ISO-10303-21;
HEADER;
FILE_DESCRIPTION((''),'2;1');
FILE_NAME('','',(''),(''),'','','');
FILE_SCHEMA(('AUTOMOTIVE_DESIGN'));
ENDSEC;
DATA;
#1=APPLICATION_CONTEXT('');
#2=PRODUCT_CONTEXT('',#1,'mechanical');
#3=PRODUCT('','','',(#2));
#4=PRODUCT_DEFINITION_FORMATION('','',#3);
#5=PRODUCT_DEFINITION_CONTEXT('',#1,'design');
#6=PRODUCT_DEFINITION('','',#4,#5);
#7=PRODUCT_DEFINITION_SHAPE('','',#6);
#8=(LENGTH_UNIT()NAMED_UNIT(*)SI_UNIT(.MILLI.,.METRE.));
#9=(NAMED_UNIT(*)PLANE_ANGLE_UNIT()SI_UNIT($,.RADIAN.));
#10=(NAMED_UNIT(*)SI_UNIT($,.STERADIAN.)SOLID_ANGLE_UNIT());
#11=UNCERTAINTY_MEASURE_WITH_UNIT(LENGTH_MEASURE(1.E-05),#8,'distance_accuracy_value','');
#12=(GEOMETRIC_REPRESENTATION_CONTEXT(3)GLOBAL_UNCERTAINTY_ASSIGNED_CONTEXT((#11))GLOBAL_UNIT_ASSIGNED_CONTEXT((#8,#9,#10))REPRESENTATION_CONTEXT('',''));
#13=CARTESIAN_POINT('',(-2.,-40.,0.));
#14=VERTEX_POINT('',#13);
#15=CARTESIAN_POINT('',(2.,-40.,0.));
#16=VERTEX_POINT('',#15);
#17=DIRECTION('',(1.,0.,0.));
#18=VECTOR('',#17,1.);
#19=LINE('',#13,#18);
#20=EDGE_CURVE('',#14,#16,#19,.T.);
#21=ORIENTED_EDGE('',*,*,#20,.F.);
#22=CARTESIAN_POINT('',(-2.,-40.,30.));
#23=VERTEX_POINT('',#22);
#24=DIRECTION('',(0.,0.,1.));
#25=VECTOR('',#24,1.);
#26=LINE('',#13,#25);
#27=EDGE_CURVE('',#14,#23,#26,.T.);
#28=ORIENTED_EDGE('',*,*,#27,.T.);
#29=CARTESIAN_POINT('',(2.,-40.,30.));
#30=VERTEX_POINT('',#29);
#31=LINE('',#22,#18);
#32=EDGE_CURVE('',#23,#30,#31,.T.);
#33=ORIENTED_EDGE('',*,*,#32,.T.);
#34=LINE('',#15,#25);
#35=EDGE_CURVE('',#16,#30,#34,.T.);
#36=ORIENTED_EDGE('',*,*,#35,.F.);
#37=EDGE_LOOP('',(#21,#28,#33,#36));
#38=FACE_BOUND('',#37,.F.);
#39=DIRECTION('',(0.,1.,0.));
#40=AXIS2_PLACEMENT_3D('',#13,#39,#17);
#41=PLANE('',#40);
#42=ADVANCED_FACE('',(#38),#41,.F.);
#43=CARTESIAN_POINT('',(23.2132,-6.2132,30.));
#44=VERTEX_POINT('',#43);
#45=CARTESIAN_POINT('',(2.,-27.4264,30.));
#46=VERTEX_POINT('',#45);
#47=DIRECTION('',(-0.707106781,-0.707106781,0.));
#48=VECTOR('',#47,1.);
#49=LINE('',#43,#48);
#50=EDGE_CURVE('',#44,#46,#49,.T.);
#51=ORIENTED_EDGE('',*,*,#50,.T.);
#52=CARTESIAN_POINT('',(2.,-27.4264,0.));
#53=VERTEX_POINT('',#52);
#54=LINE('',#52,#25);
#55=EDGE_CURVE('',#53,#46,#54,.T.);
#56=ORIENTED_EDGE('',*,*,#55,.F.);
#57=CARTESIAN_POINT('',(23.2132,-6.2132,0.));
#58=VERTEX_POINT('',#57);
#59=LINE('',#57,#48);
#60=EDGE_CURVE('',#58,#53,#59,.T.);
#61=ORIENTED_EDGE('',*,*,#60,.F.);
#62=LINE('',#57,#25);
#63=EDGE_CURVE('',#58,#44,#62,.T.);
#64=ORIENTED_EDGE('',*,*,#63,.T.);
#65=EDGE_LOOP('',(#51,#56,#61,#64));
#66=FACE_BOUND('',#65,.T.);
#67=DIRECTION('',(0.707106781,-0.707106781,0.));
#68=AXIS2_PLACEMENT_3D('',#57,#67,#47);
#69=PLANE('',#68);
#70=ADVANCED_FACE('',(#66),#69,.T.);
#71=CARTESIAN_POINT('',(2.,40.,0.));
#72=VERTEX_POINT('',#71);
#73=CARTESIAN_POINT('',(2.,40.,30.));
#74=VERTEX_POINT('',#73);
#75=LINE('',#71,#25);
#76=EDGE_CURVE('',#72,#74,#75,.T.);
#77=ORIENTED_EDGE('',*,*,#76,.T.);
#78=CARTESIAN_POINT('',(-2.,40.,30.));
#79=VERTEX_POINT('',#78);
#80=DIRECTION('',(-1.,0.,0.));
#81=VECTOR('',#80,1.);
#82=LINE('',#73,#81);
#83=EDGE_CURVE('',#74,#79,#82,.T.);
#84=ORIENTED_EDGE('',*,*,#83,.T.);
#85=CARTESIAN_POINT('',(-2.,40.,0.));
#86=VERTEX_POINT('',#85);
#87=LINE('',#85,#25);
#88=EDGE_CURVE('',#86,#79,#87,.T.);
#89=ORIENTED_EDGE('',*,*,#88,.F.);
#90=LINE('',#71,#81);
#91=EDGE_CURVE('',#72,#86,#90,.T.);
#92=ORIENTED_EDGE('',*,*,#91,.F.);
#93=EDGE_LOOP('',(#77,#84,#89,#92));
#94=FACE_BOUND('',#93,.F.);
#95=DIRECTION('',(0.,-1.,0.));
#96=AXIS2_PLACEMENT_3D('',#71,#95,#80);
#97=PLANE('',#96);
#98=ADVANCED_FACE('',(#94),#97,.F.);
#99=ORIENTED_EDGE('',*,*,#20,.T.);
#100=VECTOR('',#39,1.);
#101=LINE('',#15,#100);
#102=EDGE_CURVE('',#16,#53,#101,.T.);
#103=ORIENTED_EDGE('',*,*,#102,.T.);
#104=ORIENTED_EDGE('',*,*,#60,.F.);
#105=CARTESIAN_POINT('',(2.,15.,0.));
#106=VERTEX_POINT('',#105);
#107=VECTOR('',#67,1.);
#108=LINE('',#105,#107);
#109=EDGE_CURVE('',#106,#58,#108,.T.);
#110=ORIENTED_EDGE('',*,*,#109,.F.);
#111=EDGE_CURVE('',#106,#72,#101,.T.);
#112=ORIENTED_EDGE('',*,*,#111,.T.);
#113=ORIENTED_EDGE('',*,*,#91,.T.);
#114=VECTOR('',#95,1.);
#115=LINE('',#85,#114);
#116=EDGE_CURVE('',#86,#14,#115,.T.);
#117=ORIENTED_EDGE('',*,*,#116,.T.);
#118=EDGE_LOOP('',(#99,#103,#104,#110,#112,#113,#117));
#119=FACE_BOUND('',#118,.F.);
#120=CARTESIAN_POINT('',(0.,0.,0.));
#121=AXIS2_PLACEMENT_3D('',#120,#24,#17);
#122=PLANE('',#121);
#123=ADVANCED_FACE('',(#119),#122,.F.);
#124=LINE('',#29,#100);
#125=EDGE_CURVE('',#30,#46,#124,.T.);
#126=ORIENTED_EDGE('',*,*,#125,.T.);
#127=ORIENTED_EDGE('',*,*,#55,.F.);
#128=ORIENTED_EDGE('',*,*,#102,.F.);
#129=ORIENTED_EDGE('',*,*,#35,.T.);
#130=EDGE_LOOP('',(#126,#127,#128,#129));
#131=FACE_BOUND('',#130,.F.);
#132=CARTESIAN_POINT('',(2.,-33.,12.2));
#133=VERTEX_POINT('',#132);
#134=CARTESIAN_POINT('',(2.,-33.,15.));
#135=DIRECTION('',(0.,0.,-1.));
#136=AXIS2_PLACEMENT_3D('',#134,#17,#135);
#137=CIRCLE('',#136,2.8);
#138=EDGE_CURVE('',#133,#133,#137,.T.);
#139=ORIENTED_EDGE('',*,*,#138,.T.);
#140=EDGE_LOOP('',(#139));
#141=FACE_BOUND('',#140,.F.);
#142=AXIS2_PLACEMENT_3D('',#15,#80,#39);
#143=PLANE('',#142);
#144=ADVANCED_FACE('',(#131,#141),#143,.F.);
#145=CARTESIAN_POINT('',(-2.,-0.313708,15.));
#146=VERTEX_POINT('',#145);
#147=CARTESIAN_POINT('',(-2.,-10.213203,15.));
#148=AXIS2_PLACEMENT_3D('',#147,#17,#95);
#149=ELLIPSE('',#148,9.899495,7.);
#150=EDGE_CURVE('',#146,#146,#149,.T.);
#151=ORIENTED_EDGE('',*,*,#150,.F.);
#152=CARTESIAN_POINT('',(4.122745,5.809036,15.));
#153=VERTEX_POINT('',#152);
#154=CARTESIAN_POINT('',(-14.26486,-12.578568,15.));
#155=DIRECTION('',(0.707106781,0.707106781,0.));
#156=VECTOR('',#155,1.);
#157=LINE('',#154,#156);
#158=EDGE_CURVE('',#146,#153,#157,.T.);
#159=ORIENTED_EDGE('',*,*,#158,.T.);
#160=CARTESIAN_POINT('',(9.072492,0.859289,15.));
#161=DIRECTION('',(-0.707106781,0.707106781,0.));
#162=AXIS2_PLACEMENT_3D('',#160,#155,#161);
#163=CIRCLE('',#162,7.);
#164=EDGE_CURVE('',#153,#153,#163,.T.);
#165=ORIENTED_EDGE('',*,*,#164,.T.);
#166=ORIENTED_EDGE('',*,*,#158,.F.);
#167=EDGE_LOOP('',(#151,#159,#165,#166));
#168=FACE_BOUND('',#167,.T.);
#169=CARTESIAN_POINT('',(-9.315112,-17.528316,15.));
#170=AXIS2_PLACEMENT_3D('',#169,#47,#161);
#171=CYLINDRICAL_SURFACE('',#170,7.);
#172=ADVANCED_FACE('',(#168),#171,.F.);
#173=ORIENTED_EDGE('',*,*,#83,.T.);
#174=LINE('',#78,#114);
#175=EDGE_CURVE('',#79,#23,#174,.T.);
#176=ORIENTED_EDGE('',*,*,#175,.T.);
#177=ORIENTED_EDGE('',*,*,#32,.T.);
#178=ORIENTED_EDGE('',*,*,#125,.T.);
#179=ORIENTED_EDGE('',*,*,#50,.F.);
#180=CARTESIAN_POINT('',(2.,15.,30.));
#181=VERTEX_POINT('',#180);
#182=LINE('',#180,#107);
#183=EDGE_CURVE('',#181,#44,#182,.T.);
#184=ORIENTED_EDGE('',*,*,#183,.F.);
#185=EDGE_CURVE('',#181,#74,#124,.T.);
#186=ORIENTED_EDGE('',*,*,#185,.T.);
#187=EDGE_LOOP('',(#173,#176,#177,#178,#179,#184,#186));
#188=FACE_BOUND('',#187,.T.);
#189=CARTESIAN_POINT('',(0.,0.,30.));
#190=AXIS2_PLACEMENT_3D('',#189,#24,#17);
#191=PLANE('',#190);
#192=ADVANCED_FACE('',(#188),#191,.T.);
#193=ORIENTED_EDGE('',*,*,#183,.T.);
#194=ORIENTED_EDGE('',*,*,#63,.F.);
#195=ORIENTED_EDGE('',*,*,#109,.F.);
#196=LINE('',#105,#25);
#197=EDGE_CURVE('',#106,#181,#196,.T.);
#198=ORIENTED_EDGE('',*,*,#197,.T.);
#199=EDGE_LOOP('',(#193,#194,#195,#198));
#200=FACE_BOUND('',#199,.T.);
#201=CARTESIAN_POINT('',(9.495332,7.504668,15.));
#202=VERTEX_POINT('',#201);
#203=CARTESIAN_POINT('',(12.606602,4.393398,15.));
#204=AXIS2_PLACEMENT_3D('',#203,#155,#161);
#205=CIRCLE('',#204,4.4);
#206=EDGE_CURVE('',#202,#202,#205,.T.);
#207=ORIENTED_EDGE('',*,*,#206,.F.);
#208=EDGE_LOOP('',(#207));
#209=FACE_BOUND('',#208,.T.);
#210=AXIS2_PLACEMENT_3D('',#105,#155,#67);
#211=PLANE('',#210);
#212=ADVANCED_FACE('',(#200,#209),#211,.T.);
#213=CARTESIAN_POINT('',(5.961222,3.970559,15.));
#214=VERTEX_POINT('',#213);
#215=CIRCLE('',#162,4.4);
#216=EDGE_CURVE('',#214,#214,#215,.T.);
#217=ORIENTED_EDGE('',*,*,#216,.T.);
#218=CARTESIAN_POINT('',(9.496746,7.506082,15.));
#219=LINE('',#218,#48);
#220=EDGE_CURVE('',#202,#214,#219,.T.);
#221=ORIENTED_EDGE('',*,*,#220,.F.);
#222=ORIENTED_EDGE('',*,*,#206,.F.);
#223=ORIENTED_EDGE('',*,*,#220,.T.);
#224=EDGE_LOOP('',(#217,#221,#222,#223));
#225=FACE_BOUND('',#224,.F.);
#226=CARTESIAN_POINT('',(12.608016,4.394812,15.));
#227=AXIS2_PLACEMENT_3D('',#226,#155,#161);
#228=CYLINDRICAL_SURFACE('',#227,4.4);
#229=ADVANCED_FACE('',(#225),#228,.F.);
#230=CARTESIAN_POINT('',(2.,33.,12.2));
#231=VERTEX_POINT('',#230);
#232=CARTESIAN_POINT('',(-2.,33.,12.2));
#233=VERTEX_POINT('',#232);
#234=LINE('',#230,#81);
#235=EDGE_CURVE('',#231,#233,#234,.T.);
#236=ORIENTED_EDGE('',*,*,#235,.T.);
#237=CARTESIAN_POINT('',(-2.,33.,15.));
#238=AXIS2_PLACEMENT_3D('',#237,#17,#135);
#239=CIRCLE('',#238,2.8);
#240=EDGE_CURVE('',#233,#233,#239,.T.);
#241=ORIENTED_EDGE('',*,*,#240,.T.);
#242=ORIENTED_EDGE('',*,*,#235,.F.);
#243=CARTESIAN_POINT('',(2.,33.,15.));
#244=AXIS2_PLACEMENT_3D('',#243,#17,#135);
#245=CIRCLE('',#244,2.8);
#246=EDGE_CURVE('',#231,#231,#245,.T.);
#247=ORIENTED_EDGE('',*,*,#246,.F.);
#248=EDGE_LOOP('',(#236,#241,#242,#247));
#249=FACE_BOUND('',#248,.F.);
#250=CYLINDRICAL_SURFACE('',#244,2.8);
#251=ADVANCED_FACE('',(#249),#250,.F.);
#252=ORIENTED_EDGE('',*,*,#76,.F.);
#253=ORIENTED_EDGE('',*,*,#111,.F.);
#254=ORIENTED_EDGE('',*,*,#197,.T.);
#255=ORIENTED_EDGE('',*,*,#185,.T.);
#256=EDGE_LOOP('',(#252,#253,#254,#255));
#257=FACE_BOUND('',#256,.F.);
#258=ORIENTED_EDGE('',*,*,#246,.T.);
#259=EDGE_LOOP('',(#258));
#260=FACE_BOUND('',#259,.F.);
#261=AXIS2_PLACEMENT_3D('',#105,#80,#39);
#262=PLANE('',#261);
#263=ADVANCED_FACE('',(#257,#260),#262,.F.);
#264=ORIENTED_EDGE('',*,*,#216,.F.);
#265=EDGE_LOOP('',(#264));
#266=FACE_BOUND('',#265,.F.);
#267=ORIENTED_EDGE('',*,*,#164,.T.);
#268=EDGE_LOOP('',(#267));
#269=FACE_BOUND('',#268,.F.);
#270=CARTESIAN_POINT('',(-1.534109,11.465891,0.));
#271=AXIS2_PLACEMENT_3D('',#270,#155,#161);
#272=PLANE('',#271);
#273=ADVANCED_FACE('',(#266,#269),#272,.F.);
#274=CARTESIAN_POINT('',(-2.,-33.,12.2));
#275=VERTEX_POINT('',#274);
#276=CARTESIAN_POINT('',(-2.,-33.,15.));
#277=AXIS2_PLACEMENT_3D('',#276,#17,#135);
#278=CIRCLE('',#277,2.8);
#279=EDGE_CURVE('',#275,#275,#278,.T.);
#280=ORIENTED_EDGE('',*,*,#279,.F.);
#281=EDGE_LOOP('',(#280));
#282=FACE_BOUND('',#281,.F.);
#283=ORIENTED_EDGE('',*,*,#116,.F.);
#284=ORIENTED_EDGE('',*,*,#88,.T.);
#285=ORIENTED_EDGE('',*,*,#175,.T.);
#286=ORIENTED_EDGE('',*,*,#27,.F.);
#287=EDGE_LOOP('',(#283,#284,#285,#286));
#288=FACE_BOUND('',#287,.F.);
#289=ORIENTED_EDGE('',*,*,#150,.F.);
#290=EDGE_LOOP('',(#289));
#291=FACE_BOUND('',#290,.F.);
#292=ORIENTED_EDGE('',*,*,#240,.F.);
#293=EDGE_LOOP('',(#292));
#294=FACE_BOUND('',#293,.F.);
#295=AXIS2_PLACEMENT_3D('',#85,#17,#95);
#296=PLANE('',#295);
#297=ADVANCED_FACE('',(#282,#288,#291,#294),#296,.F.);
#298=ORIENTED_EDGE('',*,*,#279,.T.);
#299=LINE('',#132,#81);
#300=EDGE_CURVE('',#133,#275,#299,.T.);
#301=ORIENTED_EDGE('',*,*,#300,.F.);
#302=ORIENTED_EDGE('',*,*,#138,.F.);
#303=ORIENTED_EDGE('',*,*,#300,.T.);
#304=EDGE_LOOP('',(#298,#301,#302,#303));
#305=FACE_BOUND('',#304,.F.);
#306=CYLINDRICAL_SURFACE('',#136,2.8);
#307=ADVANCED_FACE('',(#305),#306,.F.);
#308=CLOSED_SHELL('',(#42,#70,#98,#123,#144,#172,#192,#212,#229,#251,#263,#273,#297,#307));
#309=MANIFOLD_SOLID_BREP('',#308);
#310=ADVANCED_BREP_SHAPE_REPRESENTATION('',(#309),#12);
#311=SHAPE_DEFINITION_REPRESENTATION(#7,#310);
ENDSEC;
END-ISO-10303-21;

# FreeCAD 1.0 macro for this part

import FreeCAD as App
import Part
import Sketcher
Q = App.Units.Quantity


def add_polygon(sketch, points):
    """Adds a closed chain of lines whose ends are joined by coincident constraints."""
    first, n = sketch.GeometryCount, len(points)
    for a, b in zip(points, points[1:] + points[:1]):
        sketch.addGeometry(Part.LineSegment(App.Vector(*a, 0), App.Vector(*b, 0)), False)
    for i in range(n):
        sketch.addConstraint(Sketcher.Constraint("Coincident", first + i, 2, first + (i + 1) % n, 1))

doc = App.newDocument("Part")
body = doc.addObject("PartDesign::Body", "Body")

sketch1 = body.newObject("Sketcher::SketchObject", "Sketch")
sketch1.AttachmentSupport = (doc.getObject("XY_Plane"), [""])
sketch1.MapMode = "FlatFace"
add_polygon(sketch1, [(-2, 40), (-2, -40), (2, -40), (2, -27.4), (23.2, -6.2), (2, 15), (2, 40)])
sketch1.addConstraint(Sketcher.Constraint("Vertical", 0))
sketch1.addConstraint(Sketcher.Constraint("Horizontal", 1))
sketch1.addConstraint(Sketcher.Constraint("Vertical", 2))
sketch1.addConstraint(Sketcher.Constraint("Vertical", 5))
sketch1.addConstraint(Sketcher.Constraint("Horizontal", 6))
sketch1.addConstraint(Sketcher.Constraint("Symmetric", 0, 2, 5, 2, -1, 1))
sketch1.addConstraint(Sketcher.Constraint("Perpendicular", 3, 4))
sketch1.addConstraint(Sketcher.Constraint("Vertical", 2, 2, 4, 2))
sketch1.addConstraint(Sketcher.Constraint("Equal", 3, 4))
sketch1.addConstraint(Sketcher.Constraint("DistanceX", 1, 1, 1, 2, Q("4 mm")))
sketch1.addConstraint(Sketcher.Constraint("DistanceY", 0, 2, 0, 1, Q("80 mm")))
sketch1.addConstraint(Sketcher.Constraint("DistanceY", 5, 1, 5, 2, Q("25 mm")))
sketch1.addConstraint(Sketcher.Constraint("Distance", 3, Q("30 mm")))
pad1 = body.newObject("PartDesign::Pad", "Pad")
pad1.Profile = sketch1
pad1.Length = 30

sketch2 = body.newObject("Sketcher::SketchObject", "Sketch001")
sketch2.Placement = App.Placement(App.Vector(2, 15, 0), App.Rotation(App.Vector(-0.707106781, 0.707106781, 0), App.Vector(0, 0, 0.999999999), App.Vector(0.707106781, 0.707106781, 0), "ZXY"))
sketch2.addGeometry(Part.Circle(App.Vector(-15, 15, 0), App.Vector(0, 0, 1), 4.4), False)
sketch2.addConstraint(Sketcher.Constraint("Diameter", 0, Q("8.8 mm")))
sketch2.addConstraint(Sketcher.Constraint("DistanceX", 0, 3, -1, 1, Q("15 mm")))
sketch2.addConstraint(Sketcher.Constraint("DistanceY", -1, 1, 0, 3, Q("15 mm")))
pocket1 = body.newObject("PartDesign::Pocket", "Pocket")
pocket1.Profile = sketch2
pocket1.Length = 27.5

sketch3 = body.newObject("Sketcher::SketchObject", "Sketch002")
sketch3.Placement = App.Placement(App.Vector(-19.9203, -6.9203, 0), App.Rotation(App.Vector(-0.707106781, 0.707106781, 0), App.Vector(0, 0, 0.999999999), App.Vector(0.707106781, 0.707106781, 0), "ZXY"))
sketch3.addGeometry(Part.Circle(App.Vector(-15, 15, 0), App.Vector(0, 0, 1), 7), False)
sketch3.addConstraint(Sketcher.Constraint("Diameter", 0, Q("14 mm")))
sketch3.addConstraint(Sketcher.Constraint("DistanceX", 0, 3, -1, 1, Q("15 mm")))
sketch3.addConstraint(Sketcher.Constraint("DistanceY", -1, 1, 0, 3, Q("15 mm")))
pocket2 = body.newObject("PartDesign::Pocket", "Pocket001")
pocket2.Profile = sketch3
pocket2.Length = 26
pocket2.Reversed = True

sketch4 = body.newObject("Sketcher::SketchObject", "Sketch003")
sketch4.AttachmentSupport = (doc.getObject("YZ_Plane"), [""])
sketch4.MapMode = "FlatFace"
sketch4.AttachmentOffset = App.Placement(App.Vector(0, 0, 2), App.Rotation())
sketch4.addGeometry(Part.Circle(App.Vector(-33, 15, 0), App.Vector(0, 0, 1), 2.8), False)
sketch4.addGeometry(Part.Circle(App.Vector(33, 15, 0), App.Vector(0, 0, 1), 2.8), False)
sketch4.addConstraint(Sketcher.Constraint("Equal", 0, 1))
sketch4.addConstraint(Sketcher.Constraint("Symmetric", 0, 3, 1, 3, -2))
sketch4.addConstraint(Sketcher.Constraint("Diameter", 0, Q("5.6 mm")))
sketch4.addConstraint(Sketcher.Constraint("DistanceY", -1, 1, 0, 3, Q("15 mm")))
sketch4.addConstraint(Sketcher.Constraint("DistanceX", 0, 3, -1, 1, Q("33 mm")))
pocket3 = body.newObject("PartDesign::Pocket", "Pocket002")
pocket3.Profile = sketch4
pocket3.Type = "ThroughAll"

doc.recompute()
